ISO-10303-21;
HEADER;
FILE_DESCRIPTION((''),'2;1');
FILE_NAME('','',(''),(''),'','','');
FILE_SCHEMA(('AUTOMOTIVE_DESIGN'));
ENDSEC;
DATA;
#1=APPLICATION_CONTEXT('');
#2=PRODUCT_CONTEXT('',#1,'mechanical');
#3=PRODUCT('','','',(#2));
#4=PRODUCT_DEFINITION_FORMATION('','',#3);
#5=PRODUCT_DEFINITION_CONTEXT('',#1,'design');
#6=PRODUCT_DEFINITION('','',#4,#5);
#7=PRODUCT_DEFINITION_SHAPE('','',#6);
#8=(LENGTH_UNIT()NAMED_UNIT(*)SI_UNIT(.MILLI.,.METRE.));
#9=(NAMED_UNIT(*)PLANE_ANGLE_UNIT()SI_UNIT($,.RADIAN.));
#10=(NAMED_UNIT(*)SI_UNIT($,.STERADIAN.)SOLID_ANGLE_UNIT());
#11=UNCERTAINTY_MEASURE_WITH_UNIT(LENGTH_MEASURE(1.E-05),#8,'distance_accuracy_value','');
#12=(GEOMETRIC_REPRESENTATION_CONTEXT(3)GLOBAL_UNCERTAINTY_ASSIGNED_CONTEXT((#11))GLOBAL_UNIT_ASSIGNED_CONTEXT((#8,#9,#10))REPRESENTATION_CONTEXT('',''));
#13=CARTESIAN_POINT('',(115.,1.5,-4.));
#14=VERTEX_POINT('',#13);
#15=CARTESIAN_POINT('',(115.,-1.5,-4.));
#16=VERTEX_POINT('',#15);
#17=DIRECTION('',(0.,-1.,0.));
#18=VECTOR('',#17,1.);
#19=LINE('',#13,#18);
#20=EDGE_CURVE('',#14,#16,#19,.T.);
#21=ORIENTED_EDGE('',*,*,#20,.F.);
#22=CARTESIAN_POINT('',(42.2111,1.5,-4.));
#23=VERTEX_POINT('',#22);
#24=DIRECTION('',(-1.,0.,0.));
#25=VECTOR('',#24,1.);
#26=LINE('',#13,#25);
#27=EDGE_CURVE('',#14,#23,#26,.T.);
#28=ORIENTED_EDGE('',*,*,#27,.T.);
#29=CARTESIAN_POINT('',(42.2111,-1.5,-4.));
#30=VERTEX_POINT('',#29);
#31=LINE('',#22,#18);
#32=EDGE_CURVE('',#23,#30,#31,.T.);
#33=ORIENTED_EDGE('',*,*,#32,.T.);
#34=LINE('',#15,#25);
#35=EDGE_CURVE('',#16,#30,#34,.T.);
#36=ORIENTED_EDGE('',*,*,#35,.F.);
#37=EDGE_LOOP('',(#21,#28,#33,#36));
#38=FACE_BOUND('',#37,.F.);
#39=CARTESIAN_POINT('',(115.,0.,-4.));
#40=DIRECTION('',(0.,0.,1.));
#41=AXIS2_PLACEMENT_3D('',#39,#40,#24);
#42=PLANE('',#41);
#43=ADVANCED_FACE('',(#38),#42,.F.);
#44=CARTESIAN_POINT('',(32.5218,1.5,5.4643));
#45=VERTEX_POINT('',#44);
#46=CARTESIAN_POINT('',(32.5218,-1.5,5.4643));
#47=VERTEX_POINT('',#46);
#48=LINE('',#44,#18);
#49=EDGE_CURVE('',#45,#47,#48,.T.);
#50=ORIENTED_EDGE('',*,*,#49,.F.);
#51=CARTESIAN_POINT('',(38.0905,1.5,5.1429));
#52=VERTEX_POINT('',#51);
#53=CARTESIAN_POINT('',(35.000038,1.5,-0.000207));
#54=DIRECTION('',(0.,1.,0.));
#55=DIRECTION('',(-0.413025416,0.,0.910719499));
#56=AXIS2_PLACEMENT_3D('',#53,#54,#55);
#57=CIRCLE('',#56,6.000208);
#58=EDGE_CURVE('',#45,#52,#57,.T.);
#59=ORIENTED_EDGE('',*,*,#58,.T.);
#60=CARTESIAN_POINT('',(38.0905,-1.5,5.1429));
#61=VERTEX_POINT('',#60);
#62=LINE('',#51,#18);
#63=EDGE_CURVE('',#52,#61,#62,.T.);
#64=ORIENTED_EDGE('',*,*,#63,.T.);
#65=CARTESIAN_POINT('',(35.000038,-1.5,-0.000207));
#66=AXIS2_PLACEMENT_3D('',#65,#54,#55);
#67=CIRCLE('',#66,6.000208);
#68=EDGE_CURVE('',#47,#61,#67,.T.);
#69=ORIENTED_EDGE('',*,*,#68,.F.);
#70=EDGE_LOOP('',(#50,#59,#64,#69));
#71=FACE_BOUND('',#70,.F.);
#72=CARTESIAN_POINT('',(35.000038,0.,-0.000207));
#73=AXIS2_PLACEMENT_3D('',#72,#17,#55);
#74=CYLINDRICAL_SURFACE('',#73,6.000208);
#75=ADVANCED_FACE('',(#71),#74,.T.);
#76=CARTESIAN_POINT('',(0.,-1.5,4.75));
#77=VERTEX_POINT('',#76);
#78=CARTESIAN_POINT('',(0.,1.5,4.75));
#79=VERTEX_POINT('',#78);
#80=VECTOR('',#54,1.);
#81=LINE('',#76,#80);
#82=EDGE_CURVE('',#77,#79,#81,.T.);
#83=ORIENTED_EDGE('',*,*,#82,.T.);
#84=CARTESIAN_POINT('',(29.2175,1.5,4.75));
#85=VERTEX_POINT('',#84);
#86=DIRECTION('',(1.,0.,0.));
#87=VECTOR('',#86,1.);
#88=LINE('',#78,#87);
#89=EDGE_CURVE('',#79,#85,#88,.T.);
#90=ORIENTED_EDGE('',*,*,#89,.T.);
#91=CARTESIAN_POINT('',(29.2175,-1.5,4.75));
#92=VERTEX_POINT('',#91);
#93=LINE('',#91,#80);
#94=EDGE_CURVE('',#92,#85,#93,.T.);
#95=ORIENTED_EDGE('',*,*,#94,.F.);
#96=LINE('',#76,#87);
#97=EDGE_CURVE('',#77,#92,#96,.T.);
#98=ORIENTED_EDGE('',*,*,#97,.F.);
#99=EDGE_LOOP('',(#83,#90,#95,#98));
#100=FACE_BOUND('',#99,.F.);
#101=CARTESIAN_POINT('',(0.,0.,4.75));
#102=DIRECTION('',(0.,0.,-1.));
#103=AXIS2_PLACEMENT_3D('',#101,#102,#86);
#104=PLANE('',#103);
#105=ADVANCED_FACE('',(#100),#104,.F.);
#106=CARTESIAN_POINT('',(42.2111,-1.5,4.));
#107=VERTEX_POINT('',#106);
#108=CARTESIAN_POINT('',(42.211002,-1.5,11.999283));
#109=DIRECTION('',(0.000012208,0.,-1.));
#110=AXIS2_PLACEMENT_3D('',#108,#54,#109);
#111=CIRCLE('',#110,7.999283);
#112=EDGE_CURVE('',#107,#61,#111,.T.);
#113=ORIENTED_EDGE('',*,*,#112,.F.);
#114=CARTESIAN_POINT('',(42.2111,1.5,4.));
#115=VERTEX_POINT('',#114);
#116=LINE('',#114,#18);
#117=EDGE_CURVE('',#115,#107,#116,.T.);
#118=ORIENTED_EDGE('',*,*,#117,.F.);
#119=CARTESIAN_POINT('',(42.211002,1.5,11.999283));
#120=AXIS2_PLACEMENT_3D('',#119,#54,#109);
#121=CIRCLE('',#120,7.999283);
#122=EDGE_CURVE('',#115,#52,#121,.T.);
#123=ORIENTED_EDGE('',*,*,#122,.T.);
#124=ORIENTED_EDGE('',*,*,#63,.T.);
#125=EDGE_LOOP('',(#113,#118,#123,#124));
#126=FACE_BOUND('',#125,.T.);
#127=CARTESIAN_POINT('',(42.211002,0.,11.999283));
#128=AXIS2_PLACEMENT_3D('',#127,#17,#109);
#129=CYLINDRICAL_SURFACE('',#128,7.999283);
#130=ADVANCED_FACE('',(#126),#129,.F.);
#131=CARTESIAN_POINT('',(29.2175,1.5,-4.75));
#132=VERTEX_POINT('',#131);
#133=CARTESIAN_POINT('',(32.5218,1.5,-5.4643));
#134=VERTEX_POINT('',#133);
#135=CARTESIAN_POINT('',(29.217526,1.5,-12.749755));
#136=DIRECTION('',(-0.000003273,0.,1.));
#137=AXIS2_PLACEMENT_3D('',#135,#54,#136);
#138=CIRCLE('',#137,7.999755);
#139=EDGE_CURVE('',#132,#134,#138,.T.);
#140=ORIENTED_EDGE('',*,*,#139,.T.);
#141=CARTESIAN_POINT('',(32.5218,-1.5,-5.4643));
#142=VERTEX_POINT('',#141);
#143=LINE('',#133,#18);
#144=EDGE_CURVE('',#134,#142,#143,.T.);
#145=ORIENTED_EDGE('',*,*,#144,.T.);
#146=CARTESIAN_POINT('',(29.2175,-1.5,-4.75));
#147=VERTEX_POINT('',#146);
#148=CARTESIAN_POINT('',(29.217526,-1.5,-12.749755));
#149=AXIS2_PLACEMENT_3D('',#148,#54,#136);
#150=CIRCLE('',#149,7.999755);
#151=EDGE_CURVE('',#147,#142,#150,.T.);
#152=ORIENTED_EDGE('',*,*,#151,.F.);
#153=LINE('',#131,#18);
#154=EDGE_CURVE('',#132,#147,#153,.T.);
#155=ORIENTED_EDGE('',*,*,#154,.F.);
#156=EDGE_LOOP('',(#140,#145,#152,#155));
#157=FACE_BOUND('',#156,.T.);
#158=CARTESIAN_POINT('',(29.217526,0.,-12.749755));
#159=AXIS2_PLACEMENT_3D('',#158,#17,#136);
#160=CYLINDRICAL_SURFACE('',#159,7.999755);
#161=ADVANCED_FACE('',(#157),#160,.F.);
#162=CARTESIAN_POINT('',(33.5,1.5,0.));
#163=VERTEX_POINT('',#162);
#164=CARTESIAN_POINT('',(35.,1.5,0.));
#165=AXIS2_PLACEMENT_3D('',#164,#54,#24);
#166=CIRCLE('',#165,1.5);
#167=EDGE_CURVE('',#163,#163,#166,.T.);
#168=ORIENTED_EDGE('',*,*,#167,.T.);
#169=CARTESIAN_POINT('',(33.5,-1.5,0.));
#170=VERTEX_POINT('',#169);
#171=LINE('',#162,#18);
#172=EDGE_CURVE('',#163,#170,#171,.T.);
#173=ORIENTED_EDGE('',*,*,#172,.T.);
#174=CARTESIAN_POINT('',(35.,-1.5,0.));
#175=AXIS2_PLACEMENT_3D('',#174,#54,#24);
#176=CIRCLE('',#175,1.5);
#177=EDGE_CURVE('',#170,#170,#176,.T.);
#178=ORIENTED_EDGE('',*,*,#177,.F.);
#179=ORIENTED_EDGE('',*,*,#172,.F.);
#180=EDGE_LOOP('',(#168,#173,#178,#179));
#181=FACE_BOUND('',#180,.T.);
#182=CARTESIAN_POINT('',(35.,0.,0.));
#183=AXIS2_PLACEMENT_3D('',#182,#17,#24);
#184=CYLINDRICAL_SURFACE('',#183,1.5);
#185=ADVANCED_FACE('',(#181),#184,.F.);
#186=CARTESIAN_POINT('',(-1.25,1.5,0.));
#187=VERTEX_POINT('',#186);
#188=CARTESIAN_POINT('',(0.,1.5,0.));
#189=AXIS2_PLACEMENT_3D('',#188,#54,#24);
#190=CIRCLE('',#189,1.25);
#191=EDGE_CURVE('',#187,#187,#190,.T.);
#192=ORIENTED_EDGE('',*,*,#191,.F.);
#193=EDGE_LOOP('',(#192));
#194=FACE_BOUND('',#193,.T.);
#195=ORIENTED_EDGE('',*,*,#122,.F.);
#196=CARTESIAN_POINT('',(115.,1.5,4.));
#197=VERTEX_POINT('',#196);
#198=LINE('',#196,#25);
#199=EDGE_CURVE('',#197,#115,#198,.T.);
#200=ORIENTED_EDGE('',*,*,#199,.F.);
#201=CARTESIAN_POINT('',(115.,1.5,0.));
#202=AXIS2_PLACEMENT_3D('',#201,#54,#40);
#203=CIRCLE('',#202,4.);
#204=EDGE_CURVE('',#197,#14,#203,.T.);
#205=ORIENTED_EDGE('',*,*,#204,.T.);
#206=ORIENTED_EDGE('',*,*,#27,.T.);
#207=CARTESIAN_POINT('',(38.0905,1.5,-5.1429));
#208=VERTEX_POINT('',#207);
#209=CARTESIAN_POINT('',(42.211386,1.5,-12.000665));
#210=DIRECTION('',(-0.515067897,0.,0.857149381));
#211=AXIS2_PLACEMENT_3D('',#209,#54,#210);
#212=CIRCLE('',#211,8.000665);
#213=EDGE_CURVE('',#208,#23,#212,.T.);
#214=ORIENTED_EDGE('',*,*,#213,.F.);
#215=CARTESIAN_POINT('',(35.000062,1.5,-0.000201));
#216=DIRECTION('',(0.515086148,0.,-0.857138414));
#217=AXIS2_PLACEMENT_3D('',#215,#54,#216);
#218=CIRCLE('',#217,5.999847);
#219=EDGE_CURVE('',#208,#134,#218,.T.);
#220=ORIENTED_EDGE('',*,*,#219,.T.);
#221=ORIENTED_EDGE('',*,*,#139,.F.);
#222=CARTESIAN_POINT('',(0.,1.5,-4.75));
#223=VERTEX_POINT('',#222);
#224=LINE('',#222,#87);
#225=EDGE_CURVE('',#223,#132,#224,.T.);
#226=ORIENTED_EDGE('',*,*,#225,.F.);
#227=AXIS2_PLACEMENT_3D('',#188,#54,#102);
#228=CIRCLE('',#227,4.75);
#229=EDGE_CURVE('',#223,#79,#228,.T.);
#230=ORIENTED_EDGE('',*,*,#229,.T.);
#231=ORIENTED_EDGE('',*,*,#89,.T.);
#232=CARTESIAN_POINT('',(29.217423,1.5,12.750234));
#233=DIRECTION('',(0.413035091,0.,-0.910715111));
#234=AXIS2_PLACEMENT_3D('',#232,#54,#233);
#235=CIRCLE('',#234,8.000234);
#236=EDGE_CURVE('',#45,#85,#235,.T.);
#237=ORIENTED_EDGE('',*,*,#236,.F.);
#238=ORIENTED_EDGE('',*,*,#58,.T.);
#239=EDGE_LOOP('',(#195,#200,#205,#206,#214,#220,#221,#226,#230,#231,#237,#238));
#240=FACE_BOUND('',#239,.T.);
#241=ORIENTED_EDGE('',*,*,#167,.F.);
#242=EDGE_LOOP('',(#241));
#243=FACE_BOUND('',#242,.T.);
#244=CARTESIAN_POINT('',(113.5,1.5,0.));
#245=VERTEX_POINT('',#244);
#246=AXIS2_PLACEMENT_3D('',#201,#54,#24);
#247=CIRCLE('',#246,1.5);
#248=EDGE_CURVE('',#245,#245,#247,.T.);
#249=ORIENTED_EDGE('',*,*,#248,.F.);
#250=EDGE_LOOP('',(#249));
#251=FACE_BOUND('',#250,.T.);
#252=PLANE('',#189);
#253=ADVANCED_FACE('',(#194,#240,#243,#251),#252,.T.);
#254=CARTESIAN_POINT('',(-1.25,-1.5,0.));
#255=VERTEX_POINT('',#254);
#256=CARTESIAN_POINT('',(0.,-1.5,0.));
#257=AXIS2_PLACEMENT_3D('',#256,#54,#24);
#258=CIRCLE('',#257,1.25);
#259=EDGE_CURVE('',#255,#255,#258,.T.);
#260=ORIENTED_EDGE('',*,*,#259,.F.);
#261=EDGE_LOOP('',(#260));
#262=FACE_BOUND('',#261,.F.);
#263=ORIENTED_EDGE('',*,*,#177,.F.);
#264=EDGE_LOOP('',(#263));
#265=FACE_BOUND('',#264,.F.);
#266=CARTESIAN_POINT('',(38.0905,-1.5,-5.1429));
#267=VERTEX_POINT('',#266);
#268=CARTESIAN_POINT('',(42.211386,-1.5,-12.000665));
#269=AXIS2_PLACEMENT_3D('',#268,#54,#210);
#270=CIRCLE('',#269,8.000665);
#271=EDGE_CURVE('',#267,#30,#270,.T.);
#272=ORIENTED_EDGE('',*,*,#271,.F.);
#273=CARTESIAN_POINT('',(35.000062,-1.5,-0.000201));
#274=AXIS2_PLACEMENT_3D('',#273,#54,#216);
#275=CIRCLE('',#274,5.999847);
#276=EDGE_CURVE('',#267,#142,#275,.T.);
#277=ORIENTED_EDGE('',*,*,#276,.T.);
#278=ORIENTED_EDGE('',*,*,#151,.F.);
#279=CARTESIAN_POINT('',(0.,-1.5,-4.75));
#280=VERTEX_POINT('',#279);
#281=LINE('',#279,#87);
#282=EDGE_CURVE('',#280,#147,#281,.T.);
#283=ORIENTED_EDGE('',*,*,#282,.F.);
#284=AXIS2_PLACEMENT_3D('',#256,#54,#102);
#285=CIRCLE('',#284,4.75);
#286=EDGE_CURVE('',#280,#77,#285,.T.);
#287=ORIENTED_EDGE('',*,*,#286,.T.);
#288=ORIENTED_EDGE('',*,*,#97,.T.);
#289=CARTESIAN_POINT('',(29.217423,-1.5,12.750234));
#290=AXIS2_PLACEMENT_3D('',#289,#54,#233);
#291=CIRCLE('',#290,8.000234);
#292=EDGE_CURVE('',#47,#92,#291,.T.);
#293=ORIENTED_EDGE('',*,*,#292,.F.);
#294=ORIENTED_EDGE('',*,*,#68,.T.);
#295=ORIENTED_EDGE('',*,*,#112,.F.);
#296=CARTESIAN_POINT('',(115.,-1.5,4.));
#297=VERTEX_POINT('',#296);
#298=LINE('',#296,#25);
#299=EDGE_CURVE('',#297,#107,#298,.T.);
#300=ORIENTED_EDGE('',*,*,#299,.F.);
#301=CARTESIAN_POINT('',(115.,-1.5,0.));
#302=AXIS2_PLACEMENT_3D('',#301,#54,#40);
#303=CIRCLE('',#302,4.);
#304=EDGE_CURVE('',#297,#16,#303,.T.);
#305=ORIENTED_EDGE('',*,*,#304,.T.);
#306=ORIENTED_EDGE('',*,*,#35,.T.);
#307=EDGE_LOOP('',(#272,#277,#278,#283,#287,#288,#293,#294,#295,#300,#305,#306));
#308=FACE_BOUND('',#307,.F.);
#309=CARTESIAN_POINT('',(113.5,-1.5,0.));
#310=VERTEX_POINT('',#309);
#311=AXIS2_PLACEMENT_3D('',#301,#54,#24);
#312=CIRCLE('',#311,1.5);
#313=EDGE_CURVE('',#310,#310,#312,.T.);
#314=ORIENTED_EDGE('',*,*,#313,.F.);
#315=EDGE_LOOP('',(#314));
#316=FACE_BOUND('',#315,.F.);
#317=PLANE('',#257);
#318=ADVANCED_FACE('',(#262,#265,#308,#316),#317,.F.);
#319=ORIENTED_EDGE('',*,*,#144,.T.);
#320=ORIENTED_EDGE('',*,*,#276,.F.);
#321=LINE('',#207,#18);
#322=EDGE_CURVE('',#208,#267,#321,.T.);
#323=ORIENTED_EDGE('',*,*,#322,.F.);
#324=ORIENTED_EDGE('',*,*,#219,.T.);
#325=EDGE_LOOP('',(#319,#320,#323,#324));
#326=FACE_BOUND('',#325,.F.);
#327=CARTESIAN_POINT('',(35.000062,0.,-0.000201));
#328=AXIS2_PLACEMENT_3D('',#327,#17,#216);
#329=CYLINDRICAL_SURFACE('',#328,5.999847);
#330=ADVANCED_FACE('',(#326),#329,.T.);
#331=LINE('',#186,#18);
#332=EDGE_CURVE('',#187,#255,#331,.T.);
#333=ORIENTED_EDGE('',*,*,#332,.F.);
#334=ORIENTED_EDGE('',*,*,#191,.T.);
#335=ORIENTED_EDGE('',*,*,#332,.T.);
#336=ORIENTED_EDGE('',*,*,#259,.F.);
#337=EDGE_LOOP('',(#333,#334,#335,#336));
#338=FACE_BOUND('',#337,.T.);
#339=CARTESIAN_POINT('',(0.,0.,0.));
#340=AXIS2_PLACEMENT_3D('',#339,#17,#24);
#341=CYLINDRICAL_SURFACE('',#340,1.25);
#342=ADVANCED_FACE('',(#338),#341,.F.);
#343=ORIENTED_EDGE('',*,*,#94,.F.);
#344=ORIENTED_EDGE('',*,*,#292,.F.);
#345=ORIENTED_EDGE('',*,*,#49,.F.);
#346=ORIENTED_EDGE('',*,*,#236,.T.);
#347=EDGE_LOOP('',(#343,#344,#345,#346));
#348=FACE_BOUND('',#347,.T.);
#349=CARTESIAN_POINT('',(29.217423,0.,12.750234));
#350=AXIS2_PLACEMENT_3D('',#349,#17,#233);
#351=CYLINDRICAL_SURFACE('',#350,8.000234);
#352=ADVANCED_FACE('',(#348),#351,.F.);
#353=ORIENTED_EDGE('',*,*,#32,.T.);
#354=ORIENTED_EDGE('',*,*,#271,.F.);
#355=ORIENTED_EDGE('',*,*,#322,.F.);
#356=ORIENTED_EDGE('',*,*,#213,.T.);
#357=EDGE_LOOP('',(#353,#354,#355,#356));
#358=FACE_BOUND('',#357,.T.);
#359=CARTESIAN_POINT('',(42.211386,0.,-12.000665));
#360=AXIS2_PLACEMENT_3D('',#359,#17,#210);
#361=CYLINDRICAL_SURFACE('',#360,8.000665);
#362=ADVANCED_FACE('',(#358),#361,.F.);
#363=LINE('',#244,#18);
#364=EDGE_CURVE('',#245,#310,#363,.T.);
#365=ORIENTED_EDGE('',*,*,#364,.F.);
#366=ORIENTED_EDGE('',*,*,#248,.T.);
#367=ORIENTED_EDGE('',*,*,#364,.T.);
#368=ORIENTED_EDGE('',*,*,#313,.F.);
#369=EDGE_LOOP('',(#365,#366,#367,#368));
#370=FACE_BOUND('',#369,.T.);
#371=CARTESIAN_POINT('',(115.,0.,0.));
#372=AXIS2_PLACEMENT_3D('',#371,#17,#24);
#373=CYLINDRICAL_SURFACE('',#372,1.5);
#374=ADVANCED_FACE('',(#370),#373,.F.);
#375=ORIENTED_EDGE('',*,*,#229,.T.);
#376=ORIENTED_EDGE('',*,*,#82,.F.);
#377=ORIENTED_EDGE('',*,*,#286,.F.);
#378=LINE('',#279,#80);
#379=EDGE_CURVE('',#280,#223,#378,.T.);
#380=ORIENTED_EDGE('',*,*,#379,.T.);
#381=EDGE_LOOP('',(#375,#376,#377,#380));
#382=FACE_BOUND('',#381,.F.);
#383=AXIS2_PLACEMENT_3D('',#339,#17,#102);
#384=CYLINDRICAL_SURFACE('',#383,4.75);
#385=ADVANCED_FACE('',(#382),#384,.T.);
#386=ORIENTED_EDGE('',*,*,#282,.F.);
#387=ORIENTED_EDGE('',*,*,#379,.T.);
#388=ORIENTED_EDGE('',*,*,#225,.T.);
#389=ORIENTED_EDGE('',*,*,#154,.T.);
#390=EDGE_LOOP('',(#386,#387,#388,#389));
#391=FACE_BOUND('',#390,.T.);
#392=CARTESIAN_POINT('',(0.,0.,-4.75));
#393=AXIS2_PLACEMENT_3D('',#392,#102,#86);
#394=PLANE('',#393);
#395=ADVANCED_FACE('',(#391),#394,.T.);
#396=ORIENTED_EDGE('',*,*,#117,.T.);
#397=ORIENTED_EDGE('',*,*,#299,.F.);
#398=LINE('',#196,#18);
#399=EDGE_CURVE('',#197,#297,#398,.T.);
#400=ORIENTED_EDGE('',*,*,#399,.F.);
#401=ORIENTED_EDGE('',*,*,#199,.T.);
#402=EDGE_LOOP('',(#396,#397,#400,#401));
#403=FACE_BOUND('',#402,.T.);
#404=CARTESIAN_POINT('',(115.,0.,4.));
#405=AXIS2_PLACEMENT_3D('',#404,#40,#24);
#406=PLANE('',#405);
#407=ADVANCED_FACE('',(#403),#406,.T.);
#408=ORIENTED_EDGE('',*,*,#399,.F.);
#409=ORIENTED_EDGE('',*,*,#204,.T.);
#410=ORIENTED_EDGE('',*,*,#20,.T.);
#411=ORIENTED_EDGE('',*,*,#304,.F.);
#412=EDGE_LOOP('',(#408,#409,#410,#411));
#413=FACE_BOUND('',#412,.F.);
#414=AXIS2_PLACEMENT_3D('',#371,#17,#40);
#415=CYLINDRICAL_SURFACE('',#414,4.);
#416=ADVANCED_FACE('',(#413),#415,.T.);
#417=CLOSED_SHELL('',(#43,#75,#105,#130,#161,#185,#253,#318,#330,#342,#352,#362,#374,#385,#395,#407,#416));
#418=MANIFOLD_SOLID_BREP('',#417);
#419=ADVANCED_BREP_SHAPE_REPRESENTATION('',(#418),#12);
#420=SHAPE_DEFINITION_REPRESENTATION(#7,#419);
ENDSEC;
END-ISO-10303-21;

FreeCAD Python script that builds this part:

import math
import FreeCAD as App
import Part
import Sketcher
Q = App.Units.Quantity

doc = App.newDocument("Part")
body = doc.addObject("PartDesign::Body", "Body")

sketch1 = body.newObject("Sketcher::SketchObject", "Sketch")
sketch1.AttachmentSupport = (doc.getObject("XZ_Plane"), [""])
sketch1.MapMode = "FlatFace"
sketch1.addGeometry([
    Part.LineSegment(App.Vector(29.2, -4.8, 0), App.Vector(0, -4.8, 0)),
    Part.ArcOfCircle(Part.Circle(App.Vector(0, 0, 0), App.Vector(0, 0, 1), 4.8), math.radians(90), math.radians(270)),
    Part.LineSegment(App.Vector(0, 4.8, 0), App.Vector(29.2, 4.8, 0)),
    Part.ArcOfCircle(Part.Circle(App.Vector(29.2, 12.8, 0), App.Vector(0, 0, 1), 8), math.radians(-90), math.radians(-66)),
    Part.ArcOfCircle(Part.Circle(App.Vector(35, 0, 0), App.Vector(0, 0, 1), 6), math.radians(59), math.radians(114)),
    Part.ArcOfCircle(Part.Circle(App.Vector(42.2, 12, 0), App.Vector(0, 0, 1), 8), math.radians(-121), math.radians(-90)),
    Part.LineSegment(App.Vector(42.2, 4, 0), App.Vector(115, 4, 0)),
    Part.ArcOfCircle(Part.Circle(App.Vector(115, 0, 0), App.Vector(0, 0, 1), 4), math.radians(-90), math.radians(90)),
    Part.LineSegment(App.Vector(115, -4, 0), App.Vector(42.2, -4, 0)),
    Part.ArcOfCircle(Part.Circle(App.Vector(42.2, -12, 0), App.Vector(0, 0, 1), 8), math.radians(90), math.radians(121)),
    Part.ArcOfCircle(Part.Circle(App.Vector(35, 0, 0), App.Vector(0, 0, 1), 6), math.radians(-114), math.radians(-59)),
    Part.ArcOfCircle(Part.Circle(App.Vector(29.2, -12.8, 0), App.Vector(0, 0, 1), 8), math.radians(66), math.radians(90)),
    Part.Circle(App.Vector(115, 0, 0), App.Vector(0, 0, 1), 1.5),
    Part.Circle(App.Vector(35, 0, 0), App.Vector(0, 0, 1), 1.5),
    Part.Circle(App.Vector(0, 0, 0), App.Vector(0, 0, 1), 1.2),
], False)
sketch1.addConstraint([
    Sketcher.Constraint("Tangent", 0, 2, 1, 2),
    Sketcher.Constraint("Tangent", 1, 1, 2, 1),
    Sketcher.Constraint("Tangent", 2, 2, 3, 1),
    Sketcher.Constraint("Tangent", 3, 2, 4, 2),
    Sketcher.Constraint("Tangent", 4, 1, 5, 1),
    Sketcher.Constraint("Tangent", 5, 2, 6, 1),
    Sketcher.Constraint("Tangent", 6, 2, 7, 2),
    Sketcher.Constraint("Tangent", 7, 1, 8, 1),
    Sketcher.Constraint("Tangent", 8, 2, 9, 1),
    Sketcher.Constraint("Tangent", 9, 2, 10, 2),
    Sketcher.Constraint("Tangent", 10, 1, 11, 1),
    Sketcher.Constraint("Tangent", 11, 2, 0, 1),
    Sketcher.Constraint("Horizontal", 0),
    Sketcher.Constraint("Horizontal", 2),
    Sketcher.Constraint("Horizontal", 6),
    Sketcher.Constraint("Horizontal", 8),
    Sketcher.Constraint("Coincident", 1, 3, -1, 1),
    Sketcher.Constraint("Coincident", 14, 3, -1, 1),
    Sketcher.Constraint("Coincident", 10, 3, 4, 3),
    Sketcher.Constraint("Coincident", 12, 3, 7, 3),
    Sketcher.Constraint("Coincident", 13, 3, 4, 3),
    Sketcher.Constraint("Equal", 3, 5),
    Sketcher.Constraint("Equal", 5, 9),
    Sketcher.Constraint("Equal", 4, 10),
    Sketcher.Constraint("Equal", 9, 11),
    Sketcher.Constraint("Equal", 12, 13),
    Sketcher.Constraint("Symmetric", 5, 3, 9, 3, -1),
    Sketcher.Constraint("Diameter", 12, Q("3 mm")),
    Sketcher.Constraint("Radius", 3, Q("8 mm")),
    Sketcher.Constraint("Radius", 7, Q("4 mm")),
    Sketcher.Constraint("Diameter", 14, Q("2.5 mm")),
    Sketcher.Constraint("Radius", 1, Q("4.75 mm")),
    Sketcher.Constraint("DistanceX", -1, 1, 4, 3, Q("35 mm")),
    Sketcher.Constraint("Radius", 4, Q("6 mm")),
    Sketcher.Constraint("DistanceX", -1, 1, 7, 3, Q("115 mm")),
])
pad1 = body.newObject("PartDesign::Pad", "Pad")
pad1.Profile = sketch1
pad1.Length = 3
pad1.Midplane = True

doc.recompute()
